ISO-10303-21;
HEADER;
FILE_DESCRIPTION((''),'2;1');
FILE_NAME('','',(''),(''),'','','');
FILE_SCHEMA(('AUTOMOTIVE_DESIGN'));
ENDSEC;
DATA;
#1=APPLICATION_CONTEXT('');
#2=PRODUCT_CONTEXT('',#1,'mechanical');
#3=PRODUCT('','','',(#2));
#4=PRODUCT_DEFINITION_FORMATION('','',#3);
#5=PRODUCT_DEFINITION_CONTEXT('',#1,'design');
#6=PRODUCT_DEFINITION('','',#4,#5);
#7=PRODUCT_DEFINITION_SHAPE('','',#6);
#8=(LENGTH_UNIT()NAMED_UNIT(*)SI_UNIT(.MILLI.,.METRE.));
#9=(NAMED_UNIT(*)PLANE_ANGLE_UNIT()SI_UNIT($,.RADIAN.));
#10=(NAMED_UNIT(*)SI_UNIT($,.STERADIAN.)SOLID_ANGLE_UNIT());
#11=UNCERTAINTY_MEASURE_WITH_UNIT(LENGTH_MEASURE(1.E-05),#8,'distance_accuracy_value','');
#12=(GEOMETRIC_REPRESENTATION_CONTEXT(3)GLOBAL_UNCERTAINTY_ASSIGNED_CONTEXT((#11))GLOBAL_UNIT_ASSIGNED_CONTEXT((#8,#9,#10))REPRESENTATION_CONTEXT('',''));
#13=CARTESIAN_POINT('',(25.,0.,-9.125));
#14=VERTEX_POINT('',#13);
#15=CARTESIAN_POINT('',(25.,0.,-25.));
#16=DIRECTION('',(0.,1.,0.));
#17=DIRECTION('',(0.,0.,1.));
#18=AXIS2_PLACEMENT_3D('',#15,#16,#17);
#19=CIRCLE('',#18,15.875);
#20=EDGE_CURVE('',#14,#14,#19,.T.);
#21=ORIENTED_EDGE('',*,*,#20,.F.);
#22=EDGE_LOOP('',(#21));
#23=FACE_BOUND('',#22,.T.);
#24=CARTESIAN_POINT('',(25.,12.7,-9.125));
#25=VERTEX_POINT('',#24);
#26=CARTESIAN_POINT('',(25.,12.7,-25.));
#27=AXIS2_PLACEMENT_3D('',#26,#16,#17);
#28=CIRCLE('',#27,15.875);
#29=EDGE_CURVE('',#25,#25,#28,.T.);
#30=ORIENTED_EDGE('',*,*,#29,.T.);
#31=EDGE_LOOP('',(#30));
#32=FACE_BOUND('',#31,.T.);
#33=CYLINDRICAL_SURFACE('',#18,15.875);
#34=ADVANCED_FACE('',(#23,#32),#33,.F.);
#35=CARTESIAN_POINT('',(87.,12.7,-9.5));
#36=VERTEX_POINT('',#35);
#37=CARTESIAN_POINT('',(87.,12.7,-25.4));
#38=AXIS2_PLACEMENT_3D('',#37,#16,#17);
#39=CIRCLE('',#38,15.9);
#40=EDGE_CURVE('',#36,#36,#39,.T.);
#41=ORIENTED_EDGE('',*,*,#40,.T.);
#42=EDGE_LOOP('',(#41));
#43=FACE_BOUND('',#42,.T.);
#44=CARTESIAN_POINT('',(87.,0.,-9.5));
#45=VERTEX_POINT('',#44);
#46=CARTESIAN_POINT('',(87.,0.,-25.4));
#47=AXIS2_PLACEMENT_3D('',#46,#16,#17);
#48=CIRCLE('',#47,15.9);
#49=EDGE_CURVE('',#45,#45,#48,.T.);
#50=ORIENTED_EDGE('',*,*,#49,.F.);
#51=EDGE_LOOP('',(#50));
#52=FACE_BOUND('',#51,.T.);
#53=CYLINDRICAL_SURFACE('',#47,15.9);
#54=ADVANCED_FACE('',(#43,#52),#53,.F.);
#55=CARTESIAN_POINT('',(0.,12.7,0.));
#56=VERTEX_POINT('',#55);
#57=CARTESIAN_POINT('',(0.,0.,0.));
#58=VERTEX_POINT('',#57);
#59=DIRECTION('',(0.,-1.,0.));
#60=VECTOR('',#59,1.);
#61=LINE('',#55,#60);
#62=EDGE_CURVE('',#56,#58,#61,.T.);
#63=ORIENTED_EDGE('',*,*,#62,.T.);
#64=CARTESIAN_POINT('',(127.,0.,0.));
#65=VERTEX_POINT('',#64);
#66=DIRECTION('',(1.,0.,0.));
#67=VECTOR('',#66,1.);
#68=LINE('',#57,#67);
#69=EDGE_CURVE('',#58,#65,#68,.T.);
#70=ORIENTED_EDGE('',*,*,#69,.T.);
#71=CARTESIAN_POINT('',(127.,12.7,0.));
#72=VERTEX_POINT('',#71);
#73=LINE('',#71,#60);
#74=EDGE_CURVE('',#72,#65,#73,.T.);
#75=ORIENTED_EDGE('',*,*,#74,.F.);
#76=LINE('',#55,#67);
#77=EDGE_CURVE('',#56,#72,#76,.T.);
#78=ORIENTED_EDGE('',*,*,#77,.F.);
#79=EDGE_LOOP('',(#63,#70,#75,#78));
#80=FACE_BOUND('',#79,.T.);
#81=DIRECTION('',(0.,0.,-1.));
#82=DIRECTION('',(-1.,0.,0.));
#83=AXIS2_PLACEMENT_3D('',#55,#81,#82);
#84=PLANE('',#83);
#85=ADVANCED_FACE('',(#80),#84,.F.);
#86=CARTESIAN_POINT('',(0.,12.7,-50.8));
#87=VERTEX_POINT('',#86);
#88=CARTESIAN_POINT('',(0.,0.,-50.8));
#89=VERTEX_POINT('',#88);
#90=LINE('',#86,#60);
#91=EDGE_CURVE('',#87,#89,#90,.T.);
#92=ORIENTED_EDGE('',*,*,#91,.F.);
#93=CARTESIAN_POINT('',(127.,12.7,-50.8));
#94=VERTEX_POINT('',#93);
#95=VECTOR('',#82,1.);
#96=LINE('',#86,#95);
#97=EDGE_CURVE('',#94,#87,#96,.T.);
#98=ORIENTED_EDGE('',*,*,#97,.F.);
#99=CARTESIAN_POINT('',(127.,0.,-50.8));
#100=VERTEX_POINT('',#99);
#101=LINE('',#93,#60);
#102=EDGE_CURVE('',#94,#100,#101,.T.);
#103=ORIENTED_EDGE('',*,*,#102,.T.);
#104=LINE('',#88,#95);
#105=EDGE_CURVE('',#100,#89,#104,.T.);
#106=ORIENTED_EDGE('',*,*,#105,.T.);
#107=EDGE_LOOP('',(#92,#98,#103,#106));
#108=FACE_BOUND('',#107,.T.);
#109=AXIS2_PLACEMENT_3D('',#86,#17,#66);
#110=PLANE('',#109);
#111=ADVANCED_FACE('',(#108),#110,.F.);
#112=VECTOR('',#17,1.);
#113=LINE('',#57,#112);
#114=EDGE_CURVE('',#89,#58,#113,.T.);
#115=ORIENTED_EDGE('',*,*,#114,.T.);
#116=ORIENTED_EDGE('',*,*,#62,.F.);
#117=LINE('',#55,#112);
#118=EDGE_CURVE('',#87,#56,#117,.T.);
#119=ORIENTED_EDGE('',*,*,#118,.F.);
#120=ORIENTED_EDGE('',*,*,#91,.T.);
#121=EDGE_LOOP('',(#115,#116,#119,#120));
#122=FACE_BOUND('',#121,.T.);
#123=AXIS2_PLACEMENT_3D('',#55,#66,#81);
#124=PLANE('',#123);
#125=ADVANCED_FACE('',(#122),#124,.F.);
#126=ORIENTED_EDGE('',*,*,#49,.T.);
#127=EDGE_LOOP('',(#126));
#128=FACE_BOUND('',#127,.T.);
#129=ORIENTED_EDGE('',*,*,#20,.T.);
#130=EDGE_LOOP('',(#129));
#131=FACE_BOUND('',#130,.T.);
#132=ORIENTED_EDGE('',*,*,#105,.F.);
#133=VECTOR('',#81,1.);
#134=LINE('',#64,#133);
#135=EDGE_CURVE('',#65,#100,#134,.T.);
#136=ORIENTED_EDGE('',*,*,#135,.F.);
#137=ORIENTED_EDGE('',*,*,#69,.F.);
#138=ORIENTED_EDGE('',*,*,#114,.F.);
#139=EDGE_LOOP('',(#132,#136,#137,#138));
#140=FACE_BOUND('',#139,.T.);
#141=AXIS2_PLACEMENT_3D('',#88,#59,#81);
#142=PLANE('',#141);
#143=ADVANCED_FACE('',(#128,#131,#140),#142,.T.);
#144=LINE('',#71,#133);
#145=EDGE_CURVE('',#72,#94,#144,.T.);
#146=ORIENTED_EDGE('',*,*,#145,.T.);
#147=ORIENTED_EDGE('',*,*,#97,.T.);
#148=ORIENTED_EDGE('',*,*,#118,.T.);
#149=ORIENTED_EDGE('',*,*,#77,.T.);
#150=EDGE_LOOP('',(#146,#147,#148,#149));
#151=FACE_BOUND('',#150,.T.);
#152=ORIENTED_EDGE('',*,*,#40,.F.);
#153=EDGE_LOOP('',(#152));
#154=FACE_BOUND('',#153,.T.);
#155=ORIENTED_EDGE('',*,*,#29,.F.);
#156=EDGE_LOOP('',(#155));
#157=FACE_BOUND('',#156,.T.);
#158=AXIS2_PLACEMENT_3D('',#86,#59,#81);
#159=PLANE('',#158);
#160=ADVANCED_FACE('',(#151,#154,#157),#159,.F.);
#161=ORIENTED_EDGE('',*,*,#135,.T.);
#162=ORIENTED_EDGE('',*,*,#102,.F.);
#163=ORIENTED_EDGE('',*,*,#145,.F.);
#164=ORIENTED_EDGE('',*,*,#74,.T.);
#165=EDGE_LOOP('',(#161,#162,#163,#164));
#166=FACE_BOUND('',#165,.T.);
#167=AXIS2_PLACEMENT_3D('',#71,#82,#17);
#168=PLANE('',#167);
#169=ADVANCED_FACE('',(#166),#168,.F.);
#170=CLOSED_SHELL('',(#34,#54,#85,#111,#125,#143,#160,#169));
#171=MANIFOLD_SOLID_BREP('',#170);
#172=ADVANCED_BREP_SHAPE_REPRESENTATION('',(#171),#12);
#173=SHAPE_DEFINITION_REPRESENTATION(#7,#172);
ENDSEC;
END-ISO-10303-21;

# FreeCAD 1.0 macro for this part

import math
import FreeCAD as App
import Part
import Sketcher
Q = App.Units.Quantity

doc = App.newDocument("Part")
body = doc.addObject("PartDesign::Body", "Body")

sketch1 = body.newObject("Sketcher::SketchObject", "Sketch")
sketch1.AttachmentSupport = (doc.getObject("XZ_Plane"), [""])
sketch1.MapMode = "FlatFace"
sketch1.addGeometry(Part.LineSegment(App.Vector(0, -51, 0), App.Vector(0, 0, 0)), False)
sketch1.addGeometry(Part.LineSegment(App.Vector(0, 0, 0), App.Vector(127, 0, 0)), False)
sketch1.addGeometry(Part.LineSegment(App.Vector(127, 0, 0), App.Vector(127, -51, 0)), False)
sketch1.addGeometry(Part.LineSegment(App.Vector(127, -51, 0), App.Vector(0, -51, 0)), False)
sketch1.addConstraint(Sketcher.Constraint("Coincident", 0, 2, 1, 1))
sketch1.addConstraint(Sketcher.Constraint("Coincident", 1, 2, 2, 1))
sketch1.addConstraint(Sketcher.Constraint("Coincident", 2, 2, 3, 1))
sketch1.addConstraint(Sketcher.Constraint("Coincident", 3, 2, 0, 1))
sketch1.addConstraint(Sketcher.Constraint("Vertical", 0))
sketch1.addConstraint(Sketcher.Constraint("Horizontal", 1))
sketch1.addConstraint(Sketcher.Constraint("Vertical", 2))
sketch1.addConstraint(Sketcher.Constraint("Horizontal", 3))
sketch1.addConstraint(Sketcher.Constraint("Coincident", 0, 2, -1, 1))
sketch1.addConstraint(Sketcher.Constraint("DistanceX", 1, 1, 1, 2, Q("5 in")))
sketch1.addConstraint(Sketcher.Constraint("DistanceY", 0, 1, 0, 2, Q("2 in")))
pad1 = body.newObject("PartDesign::Pad", "Pad")
pad1.Profile = sketch1
pad1.Length = Q("0.5 in")
pad1.Reversed = True

sketch2 = body.newObject("Sketcher::SketchObject", "Sketch001")
sketch2.AttachmentSupport = (doc.getObject("XZ_Plane"), [""])
sketch2.MapMode = "FlatFace"
sketch2.AttachmentOffset = App.Placement(App.Vector(0, 0, -0.5 * 25.4), App.Rotation())
sketch2.addGeometry(Part.ArcOfCircle(Part.Circle(App.Vector(25, -25, 0), App.Vector(0, 0, 1), 16), math.radians(90), math.radians(180)), False)
sketch2.addGeometry(Part.ArcOfCircle(Part.Circle(App.Vector(25, -25, 0), App.Vector(0, 0, 1), 16), math.radians(0), math.radians(90)), False)
sketch2.addGeometry(Part.ArcOfCircle(Part.Circle(App.Vector(25, -25, 0), App.Vector(0, 0, 1), 16), math.radians(180), math.radians(360)), False)
sketch2.addConstraint(Sketcher.Constraint("Tangent", 0, 1, 1, 2))
sketch2.addConstraint(Sketcher.Constraint("Tangent", 1, 1, 2, 2))
sketch2.addConstraint(Sketcher.Constraint("Tangent", 2, 1, 0, 2))
sketch2.addConstraint(Sketcher.Constraint("Horizontal", 2, 3, 1, 1))
sketch2.addConstraint(Sketcher.Constraint("Horizontal", 1, 1, 2, 1))
sketch2.addConstraint(Sketcher.Constraint("Vertical", 2, 3, 0, 1))
sketch2.addConstraint(Sketcher.Constraint("Radius", 0, Q("0.625 in")))
sketch2.addConstraint(Sketcher.Constraint("DistanceX", -1, 1, 0, 3, 25.0))
sketch2.addConstraint(Sketcher.Constraint("DistanceY", 0, 3, -1, 1, 25.0))
pocket1 = body.newObject("PartDesign::Pocket", "Pocket")
pocket1.Profile = sketch2
pocket1.Length = Q("0.5 in")
pocket1.Reversed = True

sketch3 = body.newObject("Sketcher::SketchObject", "Sketch002")
sketch3.AttachmentSupport = (doc.getObject("XZ_Plane"), [""])
sketch3.MapMode = "FlatFace"
sketch3.AttachmentOffset = App.Placement(App.Vector(0, 0, -0.5 * 25.4), App.Rotation())
sketch3.addGeometry(Part.ArcOfCircle(Part.Circle(App.Vector(87, -25, 0), App.Vector(0, 0, 1), 16), math.radians(90), math.radians(180)), False)
sketch3.addGeometry(Part.ArcOfCircle(Part.Circle(App.Vector(87, -25, 0), App.Vector(0, 0, 1), 16), math.radians(0), math.radians(90)), False)
sketch3.addGeometry(Part.ArcOfCircle(Part.Circle(App.Vector(87, -25, 0), App.Vector(0, 0, 1), 16), math.radians(180), math.radians(360)), False)
sketch3.addConstraint(Sketcher.Constraint("Tangent", 0, 1, 1, 2))
sketch3.addConstraint(Sketcher.Constraint("Tangent", 1, 1, 2, 2))
sketch3.addConstraint(Sketcher.Constraint("Tangent", 2, 1, 0, 2))
sketch3.addConstraint(Sketcher.Constraint("Horizontal", 2, 3, 1, 1))
sketch3.addConstraint(Sketcher.Constraint("Horizontal", 1, 1, 2, 1))
sketch3.addConstraint(Sketcher.Constraint("Vertical", 2, 3, 0, 1))
sketch3.addConstraint(Sketcher.Constraint("DistanceY", 0, 3, -1, 1, Q("1 in")))
sketch3.addConstraint(Sketcher.Constraint("Radius", 0, 15.9))
sketch3.addConstraint(Sketcher.Constraint("DistanceX", -1, 1, 0, 3, 87.0))
pocket2 = body.newObject("PartDesign::Pocket", "Pocket001")
pocket2.Profile = sketch3
pocket2.Type = "ThroughAll"
pocket2.Reversed = True

doc.recompute()
